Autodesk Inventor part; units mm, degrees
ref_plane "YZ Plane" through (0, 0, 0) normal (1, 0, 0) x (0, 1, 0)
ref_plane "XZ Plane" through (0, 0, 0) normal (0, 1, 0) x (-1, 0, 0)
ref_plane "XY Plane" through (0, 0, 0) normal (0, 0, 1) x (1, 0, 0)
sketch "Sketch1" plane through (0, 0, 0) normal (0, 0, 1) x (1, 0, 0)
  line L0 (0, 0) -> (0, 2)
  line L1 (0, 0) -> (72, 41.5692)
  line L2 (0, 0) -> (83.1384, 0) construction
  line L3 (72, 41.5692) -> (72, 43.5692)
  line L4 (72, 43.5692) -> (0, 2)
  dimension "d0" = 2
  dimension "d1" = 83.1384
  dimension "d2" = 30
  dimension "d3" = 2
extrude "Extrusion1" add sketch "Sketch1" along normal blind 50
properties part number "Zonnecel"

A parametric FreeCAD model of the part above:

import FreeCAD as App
import Part
import Sketcher
from FreeCAD import Vector
Q = App.Units.Quantity


def add_polygon(sketch, points):
    """Adds a closed chain of lines whose ends are joined by coincident constraints."""
    first, n = sketch.GeometryCount, len(points)
    for a, b in zip(points, points[1:] + points[:1]):
        sketch.addGeometry(Part.LineSegment(App.Vector(*a, 0), App.Vector(*b, 0)), False)
    for i in range(n):
        sketch.addConstraint(Sketcher.Constraint("Coincident", first + i, 2, first + (i + 1) % n, 1))

doc = App.newDocument("Part")
params = doc.addObject("Spreadsheet::Sheet", "Params")
for row, (alias, value) in enumerate([
    ("sketch1_height", "2 mm"),
    ("pad1_length", "50 mm"),
], start=1):
    params.set(f"A{row}", alias)
    params.set(f"B{row}", "=" + value)
    params.setAlias(f"B{row}", alias)

body = doc.addObject("PartDesign::Body", "Body")

# Sketch on XY plane
sketch1 = body.newObject("Sketcher::SketchObject", "Sketch")
sketch1.AttachmentSupport = (doc.getObject("XY_Plane"), [""])
sketch1.MapMode = "FlatFace"
add_polygon(sketch1, [(0, 2), (0, 0), (72, 41.6), (72, 43.6)])  # lines 0-3
sketch1.addConstraint([
    Sketcher.Constraint("Vertical", 0),
    Sketcher.Constraint("Vertical", 2),
    Sketcher.Constraint("Coincident", 0, 2, -1, 1),
    Sketcher.Constraint("Parallel", 1, 3),
    Sketcher.Constraint("DistanceY", 0, 2, 0, 1, Q("2 mm")),
    Sketcher.Constraint("Angle", 1, Q("30 deg")),
    Sketcher.Constraint("DistanceX", -1, 1, 1, 2, Q("72 mm")),
])
sketch1.setExpression("Constraints[8]", "Params.sketch1_height")
pad1 = body.newObject("PartDesign::Pad", "Pad")
pad1.Profile = sketch1
pad1.setExpression("Length", "Params.pad1_length")

doc.recompute()
